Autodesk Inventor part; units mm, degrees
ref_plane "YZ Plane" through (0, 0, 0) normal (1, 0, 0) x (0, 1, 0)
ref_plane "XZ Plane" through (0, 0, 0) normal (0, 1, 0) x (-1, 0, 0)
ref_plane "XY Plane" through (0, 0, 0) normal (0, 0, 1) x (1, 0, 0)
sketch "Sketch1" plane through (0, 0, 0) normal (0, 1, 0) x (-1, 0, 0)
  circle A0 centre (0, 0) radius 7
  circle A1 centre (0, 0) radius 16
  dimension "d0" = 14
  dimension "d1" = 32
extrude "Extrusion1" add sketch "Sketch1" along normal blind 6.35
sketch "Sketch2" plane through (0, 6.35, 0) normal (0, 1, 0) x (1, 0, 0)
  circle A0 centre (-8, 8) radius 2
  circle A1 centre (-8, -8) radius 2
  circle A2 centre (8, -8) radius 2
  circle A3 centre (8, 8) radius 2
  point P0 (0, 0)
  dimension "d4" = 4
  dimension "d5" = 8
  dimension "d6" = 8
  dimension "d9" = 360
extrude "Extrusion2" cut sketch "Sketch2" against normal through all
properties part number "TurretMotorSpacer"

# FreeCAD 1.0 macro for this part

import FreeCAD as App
import Part
import Sketcher
Q = App.Units.Quantity

doc = App.newDocument("Part")
body = doc.addObject("PartDesign::Body", "Body")

# Sketch on XZ plane
sketch1 = body.newObject("Sketcher::SketchObject", "Sketch")
sketch1.AttachmentSupport = (doc.getObject("XZ_Plane"), [""])
sketch1.MapMode = "FlatFace"
sketch1.addGeometry(Part.Circle(App.Vector(0, 0, 0), App.Vector(0, 0, 1), 16), False)
sketch1.addGeometry(Part.Circle(App.Vector(0, 0, 0), App.Vector(0, 0, 1), 7), False)
sketch1.addConstraint(Sketcher.Constraint("Coincident", 0, 3, -1, 1))
sketch1.addConstraint(Sketcher.Constraint("Coincident", 1, 3, -1, 1))
sketch1.addConstraint(Sketcher.Constraint("Diameter", 0, Q("32 mm")))
sketch1.addConstraint(Sketcher.Constraint("Diameter", 1, Q("14 mm")))
pad1 = body.newObject("PartDesign::Pad", "Pad")
pad1.Profile = sketch1
pad1.Length = 6.35
pad1.Reversed = True

# Sketch on XZ plane
sketch2 = body.newObject("Sketcher::SketchObject", "Sketch001")
sketch2.AttachmentSupport = (doc.getObject("XZ_Plane"), [""])
sketch2.MapMode = "FlatFace"
sketch2.AttachmentOffset = App.Placement(App.Vector(0, 0, -6.35), App.Rotation())
sketch2.addGeometry(Part.Circle(App.Vector(-8, -8, 0), App.Vector(0, 0, 1), 2), False)
sketch2.addGeometry(Part.Circle(App.Vector(-8, 8, 0), App.Vector(0, 0, 1), 2), False)
sketch2.addGeometry(Part.Circle(App.Vector(8, 8, 0), App.Vector(0, 0, 1), 2), False)
sketch2.addGeometry(Part.Circle(App.Vector(8, -8, 0), App.Vector(0, 0, 1), 2), False)
sketch2.addConstraint(Sketcher.Constraint("Equal", 0, 1))
sketch2.addConstraint(Sketcher.Constraint("Equal", 1, 2))
sketch2.addConstraint(Sketcher.Constraint("Equal", 2, 3))
sketch2.addConstraint(Sketcher.Constraint("Symmetric", 0, 3, 2, 3, -1, 1))
sketch2.addConstraint(Sketcher.Constraint("Symmetric", 1, 3, 3, 3, -1, 1))
sketch2.addConstraint(Sketcher.Constraint("Symmetric", 1, 3, 2, 3, -2))
sketch2.addConstraint(Sketcher.Constraint("Diameter", 0, Q("4 mm")))
sketch2.addConstraint(Sketcher.Constraint("DistanceX", 0, 3, -1, 1, Q("8 mm")))
sketch2.addConstraint(Sketcher.Constraint("DistanceY", 0, 3, -1, 1, Q("8 mm")))
pocket1 = body.newObject("PartDesign::Pocket", "Pocket")
pocket1.Profile = sketch2
pocket1.Type = "ThroughAll"
pocket1.Reversed = True

doc.recompute()
